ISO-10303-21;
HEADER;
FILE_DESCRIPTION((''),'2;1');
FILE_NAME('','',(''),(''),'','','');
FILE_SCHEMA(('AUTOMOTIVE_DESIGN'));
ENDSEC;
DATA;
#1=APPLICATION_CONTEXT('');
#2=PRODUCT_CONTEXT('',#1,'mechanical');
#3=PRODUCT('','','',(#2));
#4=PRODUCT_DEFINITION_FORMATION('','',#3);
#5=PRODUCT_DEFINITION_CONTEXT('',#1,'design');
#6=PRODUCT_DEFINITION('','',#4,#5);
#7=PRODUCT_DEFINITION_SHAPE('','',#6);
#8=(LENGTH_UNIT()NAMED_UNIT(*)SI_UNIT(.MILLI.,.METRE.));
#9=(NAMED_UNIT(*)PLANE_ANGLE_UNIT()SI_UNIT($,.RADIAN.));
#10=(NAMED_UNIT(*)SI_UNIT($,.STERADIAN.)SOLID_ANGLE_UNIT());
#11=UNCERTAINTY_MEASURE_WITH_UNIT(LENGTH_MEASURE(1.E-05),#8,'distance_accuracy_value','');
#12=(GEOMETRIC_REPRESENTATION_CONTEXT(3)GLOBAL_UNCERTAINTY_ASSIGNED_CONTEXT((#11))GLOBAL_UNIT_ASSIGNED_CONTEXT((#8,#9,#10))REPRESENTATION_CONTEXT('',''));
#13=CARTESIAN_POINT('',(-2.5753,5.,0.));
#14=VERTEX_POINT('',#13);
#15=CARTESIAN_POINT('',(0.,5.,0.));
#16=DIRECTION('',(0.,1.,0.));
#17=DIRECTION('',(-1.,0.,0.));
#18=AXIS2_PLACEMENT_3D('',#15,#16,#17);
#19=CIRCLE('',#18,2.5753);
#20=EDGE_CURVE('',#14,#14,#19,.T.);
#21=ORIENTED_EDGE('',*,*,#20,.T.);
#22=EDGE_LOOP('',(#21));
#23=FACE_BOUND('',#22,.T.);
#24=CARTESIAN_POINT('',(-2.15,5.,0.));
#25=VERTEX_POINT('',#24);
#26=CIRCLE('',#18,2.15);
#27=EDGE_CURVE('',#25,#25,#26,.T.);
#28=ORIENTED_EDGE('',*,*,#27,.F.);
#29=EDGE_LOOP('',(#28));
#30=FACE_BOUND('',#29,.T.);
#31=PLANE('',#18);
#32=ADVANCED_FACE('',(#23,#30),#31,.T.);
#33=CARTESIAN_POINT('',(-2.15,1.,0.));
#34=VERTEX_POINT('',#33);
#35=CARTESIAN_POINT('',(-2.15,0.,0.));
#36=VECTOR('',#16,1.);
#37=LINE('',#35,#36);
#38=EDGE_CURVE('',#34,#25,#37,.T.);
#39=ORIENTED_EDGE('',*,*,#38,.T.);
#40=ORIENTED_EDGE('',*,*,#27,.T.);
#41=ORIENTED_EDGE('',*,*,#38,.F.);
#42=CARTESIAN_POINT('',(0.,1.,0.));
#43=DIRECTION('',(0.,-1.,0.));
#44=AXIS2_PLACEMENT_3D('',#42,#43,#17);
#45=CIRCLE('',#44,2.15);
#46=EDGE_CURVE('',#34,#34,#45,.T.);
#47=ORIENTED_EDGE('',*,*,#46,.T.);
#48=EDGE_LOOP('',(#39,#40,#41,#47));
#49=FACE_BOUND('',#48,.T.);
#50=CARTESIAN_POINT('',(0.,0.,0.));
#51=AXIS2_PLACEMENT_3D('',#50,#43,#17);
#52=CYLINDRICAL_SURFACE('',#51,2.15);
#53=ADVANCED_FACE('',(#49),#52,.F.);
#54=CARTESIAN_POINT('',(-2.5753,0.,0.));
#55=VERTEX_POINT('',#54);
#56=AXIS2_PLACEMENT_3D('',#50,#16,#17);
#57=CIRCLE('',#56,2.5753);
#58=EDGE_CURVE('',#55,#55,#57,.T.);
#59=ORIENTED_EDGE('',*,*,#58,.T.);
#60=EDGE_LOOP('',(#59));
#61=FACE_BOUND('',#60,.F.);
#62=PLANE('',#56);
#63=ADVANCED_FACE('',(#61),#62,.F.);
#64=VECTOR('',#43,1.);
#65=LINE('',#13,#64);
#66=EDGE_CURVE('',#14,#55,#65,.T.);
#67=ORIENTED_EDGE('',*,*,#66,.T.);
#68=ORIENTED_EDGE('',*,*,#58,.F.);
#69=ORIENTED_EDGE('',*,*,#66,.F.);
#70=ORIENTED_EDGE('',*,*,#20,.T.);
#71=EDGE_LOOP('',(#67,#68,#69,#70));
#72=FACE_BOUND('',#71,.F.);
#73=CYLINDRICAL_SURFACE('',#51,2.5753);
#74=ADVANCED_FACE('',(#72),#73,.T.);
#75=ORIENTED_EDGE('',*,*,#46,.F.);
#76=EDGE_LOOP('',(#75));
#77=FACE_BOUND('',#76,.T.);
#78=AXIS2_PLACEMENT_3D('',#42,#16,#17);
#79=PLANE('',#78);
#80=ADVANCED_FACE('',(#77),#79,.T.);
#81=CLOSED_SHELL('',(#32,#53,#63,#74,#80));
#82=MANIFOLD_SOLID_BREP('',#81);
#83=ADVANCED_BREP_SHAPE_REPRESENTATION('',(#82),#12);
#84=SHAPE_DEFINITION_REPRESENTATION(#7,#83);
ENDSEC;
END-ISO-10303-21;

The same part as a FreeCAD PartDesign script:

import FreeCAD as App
import Part
import Sketcher
from FreeCAD import Vector
Q = App.Units.Quantity

doc = App.newDocument("Part")
body = doc.addObject("PartDesign::Body", "Body")

sketch1 = doc.addObject("Sketcher::SketchObject", "Sketch")
body.addObject(sketch1)
sketch1.AttachmentSupport = (doc.XZ_Plane, [""])
sketch1.MapMode = "FlatFace"
sketch1.addGeometry(Part.Circle(Vector(0, 0, 0), Vector(0, 0, 1), 2.6), False)
sketch1.addConstraint(Sketcher.Constraint("Coincident", 0, 3, -1, 1))
sketch1.addConstraint(Sketcher.Constraint("Diameter", 0, Q("5.1506 mm")))
pad1 = doc.addObject("PartDesign::Pad", "Pad")
body.addObject(pad1)
pad1.Profile = sketch1
pad1.Length = 1
pad1.Reversed = True

sketch2 = doc.addObject("Sketcher::SketchObject", "Sketch001")
body.addObject(sketch2)
sketch2.AttachmentSupport = (doc.XZ_Plane, [""])
sketch2.MapMode = "FlatFace"
sketch2.addGeometry(Part.Circle(Vector(0, 0, 0), Vector(0, 0, 1), 2.6), False)
sketch2.addGeometry(Part.Circle(Vector(0, 0, 0), Vector(0, 0, 1), 2.1), False)
sketch2.addConstraint(Sketcher.Constraint("Coincident", 0, 3, -1, 1))
sketch2.addConstraint(Sketcher.Constraint("Coincident", 1, 3, -1, 1))
sketch2.addConstraint(Sketcher.Constraint("Diameter", 1, Q("4.3 mm")))
sketch2.addConstraint(Sketcher.Constraint("Diameter", 0, Q("5.1506 mm")))
pad2 = doc.addObject("PartDesign::Pad", "Pad001")
body.addObject(pad2)
pad2.Profile = sketch2
pad2.Length = 5
pad2.Reversed = True

doc.recompute()
